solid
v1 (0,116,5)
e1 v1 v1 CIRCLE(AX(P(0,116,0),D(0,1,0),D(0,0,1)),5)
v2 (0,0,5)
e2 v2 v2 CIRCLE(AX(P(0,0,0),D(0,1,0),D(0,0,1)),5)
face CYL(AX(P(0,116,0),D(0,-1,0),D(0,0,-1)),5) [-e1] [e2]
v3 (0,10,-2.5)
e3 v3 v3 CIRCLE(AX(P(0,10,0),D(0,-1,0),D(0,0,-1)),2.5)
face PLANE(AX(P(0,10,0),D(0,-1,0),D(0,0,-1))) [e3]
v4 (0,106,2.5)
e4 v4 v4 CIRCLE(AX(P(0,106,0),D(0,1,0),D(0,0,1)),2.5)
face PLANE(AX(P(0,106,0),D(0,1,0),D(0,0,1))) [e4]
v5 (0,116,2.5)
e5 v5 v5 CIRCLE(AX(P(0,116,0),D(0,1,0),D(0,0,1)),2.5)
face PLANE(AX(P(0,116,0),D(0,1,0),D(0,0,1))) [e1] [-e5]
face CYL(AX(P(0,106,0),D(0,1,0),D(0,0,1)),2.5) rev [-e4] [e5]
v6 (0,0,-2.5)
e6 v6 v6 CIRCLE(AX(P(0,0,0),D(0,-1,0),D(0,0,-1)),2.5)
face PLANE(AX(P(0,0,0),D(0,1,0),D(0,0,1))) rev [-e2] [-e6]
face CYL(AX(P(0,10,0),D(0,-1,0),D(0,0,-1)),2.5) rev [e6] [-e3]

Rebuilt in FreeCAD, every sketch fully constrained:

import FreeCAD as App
import Part
import Sketcher
from FreeCAD import Vector
Q = App.Units.Quantity

doc = App.newDocument("Part")
params = doc.addObject("Spreadsheet::Sheet", "Params")
for row, (alias, value) in enumerate([
    ("sketch1_diameter", "10 mm"),
    ("pad1_length", "116 mm"),
    ("sketch2_diameter", "5 mm"),
    ("pocket1_length", "10 mm"),
    ("sketch3_diameter", "5 mm"),
    ("pocket2_length", "10 mm"),
], start=1):
    params.set(f"A{row}", alias)
    params.set(f"B{row}", "=" + value)
    params.setAlias(f"B{row}", alias)

body = doc.addObject("PartDesign::Body", "Body")

# Sketch on XZ plane
sketch1 = body.newObject("Sketcher::SketchObject", "Sketch")
sketch1.AttachmentSupport = (doc.getObject("XZ_Plane"), [""])
sketch1.MapMode = "FlatFace"
sketch1.addGeometry(Part.Circle(Vector(0, 0, 0), Vector(0, 0, 1), 5), False)
sketch1.addConstraint(Sketcher.Constraint("Coincident", 0, 3, -1, 1))
sketch1.addConstraint(Sketcher.Constraint("Diameter", 0, Q("10 mm")))
sketch1.setExpression("Constraints[1]", "Params.sketch1_diameter")
pad1 = body.newObject("PartDesign::Pad", "Pad")
pad1.Profile = sketch1
pad1.setExpression("Length", "Params.pad1_length")
pad1.Reversed = True

# Sketch on XZ plane
sketch2 = body.newObject("Sketcher::SketchObject", "Sketch001")
sketch2.AttachmentSupport = (doc.getObject("XZ_Plane"), [""])
sketch2.MapMode = "FlatFace"
sketch2.AttachmentOffset = App.Placement(Vector(0, 0, -116), App.Rotation())
sketch2.addGeometry(Part.Circle(Vector(0, 0, 0), Vector(0, 0, 1), 2.5), False)
sketch2.addConstraint(Sketcher.Constraint("Coincident", 0, 3, -1, 1))
sketch2.addConstraint(Sketcher.Constraint("Diameter", 0, Q("5 mm")))
sketch2.setExpression("Constraints[1]", "Params.sketch2_diameter")
pocket1 = body.newObject("PartDesign::Pocket", "Pocket")
pocket1.Profile = sketch2
pocket1.setExpression("Length", "Params.pocket1_length")
pocket1.Reversed = True

# Sketch on XZ plane
sketch3 = body.newObject("Sketcher::SketchObject", "Sketch002")
sketch3.AttachmentSupport = (doc.getObject("XZ_Plane"), [""])
sketch3.MapMode = "FlatFace"
sketch3.addGeometry(Part.Circle(Vector(0, 0, 0), Vector(0, 0, 1), 2.5), False)
sketch3.addConstraint(Sketcher.Constraint("Coincident", 0, 3, -1, 1))
sketch3.addConstraint(Sketcher.Constraint("Diameter", 0, Q("5 mm")))
sketch3.setExpression("Constraints[1]", "Params.sketch3_diameter")
pocket2 = body.newObject("PartDesign::Pocket", "Pocket001")
pocket2.Profile = sketch3
pocket2.setExpression("Length", "Params.pocket2_length")

doc.recompute()
